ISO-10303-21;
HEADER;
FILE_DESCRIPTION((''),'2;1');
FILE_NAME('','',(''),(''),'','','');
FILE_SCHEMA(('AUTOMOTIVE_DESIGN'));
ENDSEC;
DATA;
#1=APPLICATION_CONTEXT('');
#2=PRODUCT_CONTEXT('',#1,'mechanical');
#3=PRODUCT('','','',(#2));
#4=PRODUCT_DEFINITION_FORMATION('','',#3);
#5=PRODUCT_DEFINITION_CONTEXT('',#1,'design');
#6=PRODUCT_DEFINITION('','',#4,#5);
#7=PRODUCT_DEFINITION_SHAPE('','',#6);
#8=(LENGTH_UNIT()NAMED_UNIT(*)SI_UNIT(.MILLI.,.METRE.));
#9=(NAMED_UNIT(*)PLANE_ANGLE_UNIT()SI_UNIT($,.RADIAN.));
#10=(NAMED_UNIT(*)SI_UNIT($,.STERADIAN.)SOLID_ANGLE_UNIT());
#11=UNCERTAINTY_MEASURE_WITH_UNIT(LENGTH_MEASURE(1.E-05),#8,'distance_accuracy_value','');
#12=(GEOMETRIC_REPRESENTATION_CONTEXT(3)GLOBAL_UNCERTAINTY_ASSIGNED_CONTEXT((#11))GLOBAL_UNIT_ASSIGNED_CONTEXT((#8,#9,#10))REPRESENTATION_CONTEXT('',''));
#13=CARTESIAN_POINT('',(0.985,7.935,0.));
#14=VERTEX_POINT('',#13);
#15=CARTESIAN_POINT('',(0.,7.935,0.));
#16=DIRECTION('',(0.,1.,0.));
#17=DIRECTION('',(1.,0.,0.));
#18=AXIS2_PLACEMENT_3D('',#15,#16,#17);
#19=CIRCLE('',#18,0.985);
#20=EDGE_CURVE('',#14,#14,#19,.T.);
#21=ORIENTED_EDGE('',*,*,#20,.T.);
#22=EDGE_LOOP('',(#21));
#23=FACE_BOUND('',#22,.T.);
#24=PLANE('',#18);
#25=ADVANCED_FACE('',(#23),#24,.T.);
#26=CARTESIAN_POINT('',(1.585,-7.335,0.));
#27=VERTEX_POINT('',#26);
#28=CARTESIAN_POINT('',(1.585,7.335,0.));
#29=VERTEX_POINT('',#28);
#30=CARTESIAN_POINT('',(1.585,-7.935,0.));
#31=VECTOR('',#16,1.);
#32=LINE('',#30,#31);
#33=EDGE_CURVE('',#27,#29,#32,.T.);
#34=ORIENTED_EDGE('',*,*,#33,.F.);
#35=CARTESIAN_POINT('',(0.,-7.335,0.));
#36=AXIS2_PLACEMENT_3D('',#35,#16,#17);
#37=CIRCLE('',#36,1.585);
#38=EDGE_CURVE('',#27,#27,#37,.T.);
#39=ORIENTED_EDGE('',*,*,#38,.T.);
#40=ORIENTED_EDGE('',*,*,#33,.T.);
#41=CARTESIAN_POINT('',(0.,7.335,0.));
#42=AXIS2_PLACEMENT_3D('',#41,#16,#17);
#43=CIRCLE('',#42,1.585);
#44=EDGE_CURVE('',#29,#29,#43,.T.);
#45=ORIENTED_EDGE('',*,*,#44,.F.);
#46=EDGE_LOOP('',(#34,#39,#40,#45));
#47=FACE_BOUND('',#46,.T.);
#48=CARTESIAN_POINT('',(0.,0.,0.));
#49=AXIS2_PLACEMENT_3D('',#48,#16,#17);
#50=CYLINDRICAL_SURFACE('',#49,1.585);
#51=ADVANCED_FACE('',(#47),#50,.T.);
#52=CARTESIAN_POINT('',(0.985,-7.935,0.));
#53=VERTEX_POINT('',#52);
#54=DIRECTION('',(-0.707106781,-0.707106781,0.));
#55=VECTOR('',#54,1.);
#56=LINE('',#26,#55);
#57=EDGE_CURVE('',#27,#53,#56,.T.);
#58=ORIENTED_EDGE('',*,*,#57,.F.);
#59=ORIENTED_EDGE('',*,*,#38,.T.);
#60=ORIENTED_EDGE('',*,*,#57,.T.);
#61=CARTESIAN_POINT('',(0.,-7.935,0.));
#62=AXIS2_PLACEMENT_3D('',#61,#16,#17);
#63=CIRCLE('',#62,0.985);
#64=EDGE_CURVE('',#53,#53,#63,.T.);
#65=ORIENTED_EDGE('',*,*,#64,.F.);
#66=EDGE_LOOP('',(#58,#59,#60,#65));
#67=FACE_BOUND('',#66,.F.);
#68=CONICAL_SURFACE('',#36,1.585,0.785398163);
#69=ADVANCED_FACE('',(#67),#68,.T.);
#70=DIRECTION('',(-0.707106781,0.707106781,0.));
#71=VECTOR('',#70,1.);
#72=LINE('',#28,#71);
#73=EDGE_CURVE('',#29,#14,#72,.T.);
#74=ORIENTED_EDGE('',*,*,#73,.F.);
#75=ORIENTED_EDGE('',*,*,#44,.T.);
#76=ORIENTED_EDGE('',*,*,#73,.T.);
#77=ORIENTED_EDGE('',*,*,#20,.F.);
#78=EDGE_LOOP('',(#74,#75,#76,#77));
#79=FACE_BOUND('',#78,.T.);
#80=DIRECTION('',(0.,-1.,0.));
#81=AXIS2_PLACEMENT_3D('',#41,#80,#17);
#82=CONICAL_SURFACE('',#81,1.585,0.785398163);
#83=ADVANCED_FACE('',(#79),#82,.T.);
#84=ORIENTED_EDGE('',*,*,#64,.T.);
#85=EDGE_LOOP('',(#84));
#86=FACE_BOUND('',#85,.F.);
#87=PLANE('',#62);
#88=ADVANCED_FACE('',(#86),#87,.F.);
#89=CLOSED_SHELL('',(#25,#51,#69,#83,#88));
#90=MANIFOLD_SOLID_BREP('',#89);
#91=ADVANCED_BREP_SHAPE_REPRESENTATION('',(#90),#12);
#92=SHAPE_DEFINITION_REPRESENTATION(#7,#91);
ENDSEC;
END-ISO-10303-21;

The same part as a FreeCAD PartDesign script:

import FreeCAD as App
import Part
import Sketcher

V = App.Vector
Q = App.Units.Quantity


def edges_at(feature, points):
    """Names of the edges that pass closest to the given points."""
    edges = feature.Shape.Edges
    near = lambda p: min(range(len(edges)), key=lambda i: edges[i].distToShape(Part.Vertex(*p))[0])
    return sorted({f"Edge{near(p) + 1}" for p in points})

doc = App.newDocument("Part")
body = doc.addObject("PartDesign::Body", "Body")

# Sketch on XZ plane
sketch1 = body.newObject("Sketcher::SketchObject", "Sketch")
sketch1.AttachmentSupport = (doc.getObject("XZ_Plane"), [""])
sketch1.MapMode = "FlatFace"
sketch1.addGeometry(Part.Circle(V(0, 0, 0), V(0, 0, 1), 1.6), False)
sketch1.addConstraint(Sketcher.Constraint("Coincident", 0, 3, -1, 1))
sketch1.addConstraint(Sketcher.Constraint("Diameter", 0, Q("3.17 mm")))
pad1 = body.newObject("PartDesign::Pad", "Pad")
pad1.Profile = sketch1
pad1.Length = 15.87
pad1.Midplane = True
doc.recompute()

chamfer = body.newObject("PartDesign::Chamfer", "Chamfer")
chamfer.Base = (pad1, edges_at(pad1, [(-1.585, -7.935, 0), (-1.585, 7.935, 0)]))
chamfer.Size = 0.6

doc.recompute()
